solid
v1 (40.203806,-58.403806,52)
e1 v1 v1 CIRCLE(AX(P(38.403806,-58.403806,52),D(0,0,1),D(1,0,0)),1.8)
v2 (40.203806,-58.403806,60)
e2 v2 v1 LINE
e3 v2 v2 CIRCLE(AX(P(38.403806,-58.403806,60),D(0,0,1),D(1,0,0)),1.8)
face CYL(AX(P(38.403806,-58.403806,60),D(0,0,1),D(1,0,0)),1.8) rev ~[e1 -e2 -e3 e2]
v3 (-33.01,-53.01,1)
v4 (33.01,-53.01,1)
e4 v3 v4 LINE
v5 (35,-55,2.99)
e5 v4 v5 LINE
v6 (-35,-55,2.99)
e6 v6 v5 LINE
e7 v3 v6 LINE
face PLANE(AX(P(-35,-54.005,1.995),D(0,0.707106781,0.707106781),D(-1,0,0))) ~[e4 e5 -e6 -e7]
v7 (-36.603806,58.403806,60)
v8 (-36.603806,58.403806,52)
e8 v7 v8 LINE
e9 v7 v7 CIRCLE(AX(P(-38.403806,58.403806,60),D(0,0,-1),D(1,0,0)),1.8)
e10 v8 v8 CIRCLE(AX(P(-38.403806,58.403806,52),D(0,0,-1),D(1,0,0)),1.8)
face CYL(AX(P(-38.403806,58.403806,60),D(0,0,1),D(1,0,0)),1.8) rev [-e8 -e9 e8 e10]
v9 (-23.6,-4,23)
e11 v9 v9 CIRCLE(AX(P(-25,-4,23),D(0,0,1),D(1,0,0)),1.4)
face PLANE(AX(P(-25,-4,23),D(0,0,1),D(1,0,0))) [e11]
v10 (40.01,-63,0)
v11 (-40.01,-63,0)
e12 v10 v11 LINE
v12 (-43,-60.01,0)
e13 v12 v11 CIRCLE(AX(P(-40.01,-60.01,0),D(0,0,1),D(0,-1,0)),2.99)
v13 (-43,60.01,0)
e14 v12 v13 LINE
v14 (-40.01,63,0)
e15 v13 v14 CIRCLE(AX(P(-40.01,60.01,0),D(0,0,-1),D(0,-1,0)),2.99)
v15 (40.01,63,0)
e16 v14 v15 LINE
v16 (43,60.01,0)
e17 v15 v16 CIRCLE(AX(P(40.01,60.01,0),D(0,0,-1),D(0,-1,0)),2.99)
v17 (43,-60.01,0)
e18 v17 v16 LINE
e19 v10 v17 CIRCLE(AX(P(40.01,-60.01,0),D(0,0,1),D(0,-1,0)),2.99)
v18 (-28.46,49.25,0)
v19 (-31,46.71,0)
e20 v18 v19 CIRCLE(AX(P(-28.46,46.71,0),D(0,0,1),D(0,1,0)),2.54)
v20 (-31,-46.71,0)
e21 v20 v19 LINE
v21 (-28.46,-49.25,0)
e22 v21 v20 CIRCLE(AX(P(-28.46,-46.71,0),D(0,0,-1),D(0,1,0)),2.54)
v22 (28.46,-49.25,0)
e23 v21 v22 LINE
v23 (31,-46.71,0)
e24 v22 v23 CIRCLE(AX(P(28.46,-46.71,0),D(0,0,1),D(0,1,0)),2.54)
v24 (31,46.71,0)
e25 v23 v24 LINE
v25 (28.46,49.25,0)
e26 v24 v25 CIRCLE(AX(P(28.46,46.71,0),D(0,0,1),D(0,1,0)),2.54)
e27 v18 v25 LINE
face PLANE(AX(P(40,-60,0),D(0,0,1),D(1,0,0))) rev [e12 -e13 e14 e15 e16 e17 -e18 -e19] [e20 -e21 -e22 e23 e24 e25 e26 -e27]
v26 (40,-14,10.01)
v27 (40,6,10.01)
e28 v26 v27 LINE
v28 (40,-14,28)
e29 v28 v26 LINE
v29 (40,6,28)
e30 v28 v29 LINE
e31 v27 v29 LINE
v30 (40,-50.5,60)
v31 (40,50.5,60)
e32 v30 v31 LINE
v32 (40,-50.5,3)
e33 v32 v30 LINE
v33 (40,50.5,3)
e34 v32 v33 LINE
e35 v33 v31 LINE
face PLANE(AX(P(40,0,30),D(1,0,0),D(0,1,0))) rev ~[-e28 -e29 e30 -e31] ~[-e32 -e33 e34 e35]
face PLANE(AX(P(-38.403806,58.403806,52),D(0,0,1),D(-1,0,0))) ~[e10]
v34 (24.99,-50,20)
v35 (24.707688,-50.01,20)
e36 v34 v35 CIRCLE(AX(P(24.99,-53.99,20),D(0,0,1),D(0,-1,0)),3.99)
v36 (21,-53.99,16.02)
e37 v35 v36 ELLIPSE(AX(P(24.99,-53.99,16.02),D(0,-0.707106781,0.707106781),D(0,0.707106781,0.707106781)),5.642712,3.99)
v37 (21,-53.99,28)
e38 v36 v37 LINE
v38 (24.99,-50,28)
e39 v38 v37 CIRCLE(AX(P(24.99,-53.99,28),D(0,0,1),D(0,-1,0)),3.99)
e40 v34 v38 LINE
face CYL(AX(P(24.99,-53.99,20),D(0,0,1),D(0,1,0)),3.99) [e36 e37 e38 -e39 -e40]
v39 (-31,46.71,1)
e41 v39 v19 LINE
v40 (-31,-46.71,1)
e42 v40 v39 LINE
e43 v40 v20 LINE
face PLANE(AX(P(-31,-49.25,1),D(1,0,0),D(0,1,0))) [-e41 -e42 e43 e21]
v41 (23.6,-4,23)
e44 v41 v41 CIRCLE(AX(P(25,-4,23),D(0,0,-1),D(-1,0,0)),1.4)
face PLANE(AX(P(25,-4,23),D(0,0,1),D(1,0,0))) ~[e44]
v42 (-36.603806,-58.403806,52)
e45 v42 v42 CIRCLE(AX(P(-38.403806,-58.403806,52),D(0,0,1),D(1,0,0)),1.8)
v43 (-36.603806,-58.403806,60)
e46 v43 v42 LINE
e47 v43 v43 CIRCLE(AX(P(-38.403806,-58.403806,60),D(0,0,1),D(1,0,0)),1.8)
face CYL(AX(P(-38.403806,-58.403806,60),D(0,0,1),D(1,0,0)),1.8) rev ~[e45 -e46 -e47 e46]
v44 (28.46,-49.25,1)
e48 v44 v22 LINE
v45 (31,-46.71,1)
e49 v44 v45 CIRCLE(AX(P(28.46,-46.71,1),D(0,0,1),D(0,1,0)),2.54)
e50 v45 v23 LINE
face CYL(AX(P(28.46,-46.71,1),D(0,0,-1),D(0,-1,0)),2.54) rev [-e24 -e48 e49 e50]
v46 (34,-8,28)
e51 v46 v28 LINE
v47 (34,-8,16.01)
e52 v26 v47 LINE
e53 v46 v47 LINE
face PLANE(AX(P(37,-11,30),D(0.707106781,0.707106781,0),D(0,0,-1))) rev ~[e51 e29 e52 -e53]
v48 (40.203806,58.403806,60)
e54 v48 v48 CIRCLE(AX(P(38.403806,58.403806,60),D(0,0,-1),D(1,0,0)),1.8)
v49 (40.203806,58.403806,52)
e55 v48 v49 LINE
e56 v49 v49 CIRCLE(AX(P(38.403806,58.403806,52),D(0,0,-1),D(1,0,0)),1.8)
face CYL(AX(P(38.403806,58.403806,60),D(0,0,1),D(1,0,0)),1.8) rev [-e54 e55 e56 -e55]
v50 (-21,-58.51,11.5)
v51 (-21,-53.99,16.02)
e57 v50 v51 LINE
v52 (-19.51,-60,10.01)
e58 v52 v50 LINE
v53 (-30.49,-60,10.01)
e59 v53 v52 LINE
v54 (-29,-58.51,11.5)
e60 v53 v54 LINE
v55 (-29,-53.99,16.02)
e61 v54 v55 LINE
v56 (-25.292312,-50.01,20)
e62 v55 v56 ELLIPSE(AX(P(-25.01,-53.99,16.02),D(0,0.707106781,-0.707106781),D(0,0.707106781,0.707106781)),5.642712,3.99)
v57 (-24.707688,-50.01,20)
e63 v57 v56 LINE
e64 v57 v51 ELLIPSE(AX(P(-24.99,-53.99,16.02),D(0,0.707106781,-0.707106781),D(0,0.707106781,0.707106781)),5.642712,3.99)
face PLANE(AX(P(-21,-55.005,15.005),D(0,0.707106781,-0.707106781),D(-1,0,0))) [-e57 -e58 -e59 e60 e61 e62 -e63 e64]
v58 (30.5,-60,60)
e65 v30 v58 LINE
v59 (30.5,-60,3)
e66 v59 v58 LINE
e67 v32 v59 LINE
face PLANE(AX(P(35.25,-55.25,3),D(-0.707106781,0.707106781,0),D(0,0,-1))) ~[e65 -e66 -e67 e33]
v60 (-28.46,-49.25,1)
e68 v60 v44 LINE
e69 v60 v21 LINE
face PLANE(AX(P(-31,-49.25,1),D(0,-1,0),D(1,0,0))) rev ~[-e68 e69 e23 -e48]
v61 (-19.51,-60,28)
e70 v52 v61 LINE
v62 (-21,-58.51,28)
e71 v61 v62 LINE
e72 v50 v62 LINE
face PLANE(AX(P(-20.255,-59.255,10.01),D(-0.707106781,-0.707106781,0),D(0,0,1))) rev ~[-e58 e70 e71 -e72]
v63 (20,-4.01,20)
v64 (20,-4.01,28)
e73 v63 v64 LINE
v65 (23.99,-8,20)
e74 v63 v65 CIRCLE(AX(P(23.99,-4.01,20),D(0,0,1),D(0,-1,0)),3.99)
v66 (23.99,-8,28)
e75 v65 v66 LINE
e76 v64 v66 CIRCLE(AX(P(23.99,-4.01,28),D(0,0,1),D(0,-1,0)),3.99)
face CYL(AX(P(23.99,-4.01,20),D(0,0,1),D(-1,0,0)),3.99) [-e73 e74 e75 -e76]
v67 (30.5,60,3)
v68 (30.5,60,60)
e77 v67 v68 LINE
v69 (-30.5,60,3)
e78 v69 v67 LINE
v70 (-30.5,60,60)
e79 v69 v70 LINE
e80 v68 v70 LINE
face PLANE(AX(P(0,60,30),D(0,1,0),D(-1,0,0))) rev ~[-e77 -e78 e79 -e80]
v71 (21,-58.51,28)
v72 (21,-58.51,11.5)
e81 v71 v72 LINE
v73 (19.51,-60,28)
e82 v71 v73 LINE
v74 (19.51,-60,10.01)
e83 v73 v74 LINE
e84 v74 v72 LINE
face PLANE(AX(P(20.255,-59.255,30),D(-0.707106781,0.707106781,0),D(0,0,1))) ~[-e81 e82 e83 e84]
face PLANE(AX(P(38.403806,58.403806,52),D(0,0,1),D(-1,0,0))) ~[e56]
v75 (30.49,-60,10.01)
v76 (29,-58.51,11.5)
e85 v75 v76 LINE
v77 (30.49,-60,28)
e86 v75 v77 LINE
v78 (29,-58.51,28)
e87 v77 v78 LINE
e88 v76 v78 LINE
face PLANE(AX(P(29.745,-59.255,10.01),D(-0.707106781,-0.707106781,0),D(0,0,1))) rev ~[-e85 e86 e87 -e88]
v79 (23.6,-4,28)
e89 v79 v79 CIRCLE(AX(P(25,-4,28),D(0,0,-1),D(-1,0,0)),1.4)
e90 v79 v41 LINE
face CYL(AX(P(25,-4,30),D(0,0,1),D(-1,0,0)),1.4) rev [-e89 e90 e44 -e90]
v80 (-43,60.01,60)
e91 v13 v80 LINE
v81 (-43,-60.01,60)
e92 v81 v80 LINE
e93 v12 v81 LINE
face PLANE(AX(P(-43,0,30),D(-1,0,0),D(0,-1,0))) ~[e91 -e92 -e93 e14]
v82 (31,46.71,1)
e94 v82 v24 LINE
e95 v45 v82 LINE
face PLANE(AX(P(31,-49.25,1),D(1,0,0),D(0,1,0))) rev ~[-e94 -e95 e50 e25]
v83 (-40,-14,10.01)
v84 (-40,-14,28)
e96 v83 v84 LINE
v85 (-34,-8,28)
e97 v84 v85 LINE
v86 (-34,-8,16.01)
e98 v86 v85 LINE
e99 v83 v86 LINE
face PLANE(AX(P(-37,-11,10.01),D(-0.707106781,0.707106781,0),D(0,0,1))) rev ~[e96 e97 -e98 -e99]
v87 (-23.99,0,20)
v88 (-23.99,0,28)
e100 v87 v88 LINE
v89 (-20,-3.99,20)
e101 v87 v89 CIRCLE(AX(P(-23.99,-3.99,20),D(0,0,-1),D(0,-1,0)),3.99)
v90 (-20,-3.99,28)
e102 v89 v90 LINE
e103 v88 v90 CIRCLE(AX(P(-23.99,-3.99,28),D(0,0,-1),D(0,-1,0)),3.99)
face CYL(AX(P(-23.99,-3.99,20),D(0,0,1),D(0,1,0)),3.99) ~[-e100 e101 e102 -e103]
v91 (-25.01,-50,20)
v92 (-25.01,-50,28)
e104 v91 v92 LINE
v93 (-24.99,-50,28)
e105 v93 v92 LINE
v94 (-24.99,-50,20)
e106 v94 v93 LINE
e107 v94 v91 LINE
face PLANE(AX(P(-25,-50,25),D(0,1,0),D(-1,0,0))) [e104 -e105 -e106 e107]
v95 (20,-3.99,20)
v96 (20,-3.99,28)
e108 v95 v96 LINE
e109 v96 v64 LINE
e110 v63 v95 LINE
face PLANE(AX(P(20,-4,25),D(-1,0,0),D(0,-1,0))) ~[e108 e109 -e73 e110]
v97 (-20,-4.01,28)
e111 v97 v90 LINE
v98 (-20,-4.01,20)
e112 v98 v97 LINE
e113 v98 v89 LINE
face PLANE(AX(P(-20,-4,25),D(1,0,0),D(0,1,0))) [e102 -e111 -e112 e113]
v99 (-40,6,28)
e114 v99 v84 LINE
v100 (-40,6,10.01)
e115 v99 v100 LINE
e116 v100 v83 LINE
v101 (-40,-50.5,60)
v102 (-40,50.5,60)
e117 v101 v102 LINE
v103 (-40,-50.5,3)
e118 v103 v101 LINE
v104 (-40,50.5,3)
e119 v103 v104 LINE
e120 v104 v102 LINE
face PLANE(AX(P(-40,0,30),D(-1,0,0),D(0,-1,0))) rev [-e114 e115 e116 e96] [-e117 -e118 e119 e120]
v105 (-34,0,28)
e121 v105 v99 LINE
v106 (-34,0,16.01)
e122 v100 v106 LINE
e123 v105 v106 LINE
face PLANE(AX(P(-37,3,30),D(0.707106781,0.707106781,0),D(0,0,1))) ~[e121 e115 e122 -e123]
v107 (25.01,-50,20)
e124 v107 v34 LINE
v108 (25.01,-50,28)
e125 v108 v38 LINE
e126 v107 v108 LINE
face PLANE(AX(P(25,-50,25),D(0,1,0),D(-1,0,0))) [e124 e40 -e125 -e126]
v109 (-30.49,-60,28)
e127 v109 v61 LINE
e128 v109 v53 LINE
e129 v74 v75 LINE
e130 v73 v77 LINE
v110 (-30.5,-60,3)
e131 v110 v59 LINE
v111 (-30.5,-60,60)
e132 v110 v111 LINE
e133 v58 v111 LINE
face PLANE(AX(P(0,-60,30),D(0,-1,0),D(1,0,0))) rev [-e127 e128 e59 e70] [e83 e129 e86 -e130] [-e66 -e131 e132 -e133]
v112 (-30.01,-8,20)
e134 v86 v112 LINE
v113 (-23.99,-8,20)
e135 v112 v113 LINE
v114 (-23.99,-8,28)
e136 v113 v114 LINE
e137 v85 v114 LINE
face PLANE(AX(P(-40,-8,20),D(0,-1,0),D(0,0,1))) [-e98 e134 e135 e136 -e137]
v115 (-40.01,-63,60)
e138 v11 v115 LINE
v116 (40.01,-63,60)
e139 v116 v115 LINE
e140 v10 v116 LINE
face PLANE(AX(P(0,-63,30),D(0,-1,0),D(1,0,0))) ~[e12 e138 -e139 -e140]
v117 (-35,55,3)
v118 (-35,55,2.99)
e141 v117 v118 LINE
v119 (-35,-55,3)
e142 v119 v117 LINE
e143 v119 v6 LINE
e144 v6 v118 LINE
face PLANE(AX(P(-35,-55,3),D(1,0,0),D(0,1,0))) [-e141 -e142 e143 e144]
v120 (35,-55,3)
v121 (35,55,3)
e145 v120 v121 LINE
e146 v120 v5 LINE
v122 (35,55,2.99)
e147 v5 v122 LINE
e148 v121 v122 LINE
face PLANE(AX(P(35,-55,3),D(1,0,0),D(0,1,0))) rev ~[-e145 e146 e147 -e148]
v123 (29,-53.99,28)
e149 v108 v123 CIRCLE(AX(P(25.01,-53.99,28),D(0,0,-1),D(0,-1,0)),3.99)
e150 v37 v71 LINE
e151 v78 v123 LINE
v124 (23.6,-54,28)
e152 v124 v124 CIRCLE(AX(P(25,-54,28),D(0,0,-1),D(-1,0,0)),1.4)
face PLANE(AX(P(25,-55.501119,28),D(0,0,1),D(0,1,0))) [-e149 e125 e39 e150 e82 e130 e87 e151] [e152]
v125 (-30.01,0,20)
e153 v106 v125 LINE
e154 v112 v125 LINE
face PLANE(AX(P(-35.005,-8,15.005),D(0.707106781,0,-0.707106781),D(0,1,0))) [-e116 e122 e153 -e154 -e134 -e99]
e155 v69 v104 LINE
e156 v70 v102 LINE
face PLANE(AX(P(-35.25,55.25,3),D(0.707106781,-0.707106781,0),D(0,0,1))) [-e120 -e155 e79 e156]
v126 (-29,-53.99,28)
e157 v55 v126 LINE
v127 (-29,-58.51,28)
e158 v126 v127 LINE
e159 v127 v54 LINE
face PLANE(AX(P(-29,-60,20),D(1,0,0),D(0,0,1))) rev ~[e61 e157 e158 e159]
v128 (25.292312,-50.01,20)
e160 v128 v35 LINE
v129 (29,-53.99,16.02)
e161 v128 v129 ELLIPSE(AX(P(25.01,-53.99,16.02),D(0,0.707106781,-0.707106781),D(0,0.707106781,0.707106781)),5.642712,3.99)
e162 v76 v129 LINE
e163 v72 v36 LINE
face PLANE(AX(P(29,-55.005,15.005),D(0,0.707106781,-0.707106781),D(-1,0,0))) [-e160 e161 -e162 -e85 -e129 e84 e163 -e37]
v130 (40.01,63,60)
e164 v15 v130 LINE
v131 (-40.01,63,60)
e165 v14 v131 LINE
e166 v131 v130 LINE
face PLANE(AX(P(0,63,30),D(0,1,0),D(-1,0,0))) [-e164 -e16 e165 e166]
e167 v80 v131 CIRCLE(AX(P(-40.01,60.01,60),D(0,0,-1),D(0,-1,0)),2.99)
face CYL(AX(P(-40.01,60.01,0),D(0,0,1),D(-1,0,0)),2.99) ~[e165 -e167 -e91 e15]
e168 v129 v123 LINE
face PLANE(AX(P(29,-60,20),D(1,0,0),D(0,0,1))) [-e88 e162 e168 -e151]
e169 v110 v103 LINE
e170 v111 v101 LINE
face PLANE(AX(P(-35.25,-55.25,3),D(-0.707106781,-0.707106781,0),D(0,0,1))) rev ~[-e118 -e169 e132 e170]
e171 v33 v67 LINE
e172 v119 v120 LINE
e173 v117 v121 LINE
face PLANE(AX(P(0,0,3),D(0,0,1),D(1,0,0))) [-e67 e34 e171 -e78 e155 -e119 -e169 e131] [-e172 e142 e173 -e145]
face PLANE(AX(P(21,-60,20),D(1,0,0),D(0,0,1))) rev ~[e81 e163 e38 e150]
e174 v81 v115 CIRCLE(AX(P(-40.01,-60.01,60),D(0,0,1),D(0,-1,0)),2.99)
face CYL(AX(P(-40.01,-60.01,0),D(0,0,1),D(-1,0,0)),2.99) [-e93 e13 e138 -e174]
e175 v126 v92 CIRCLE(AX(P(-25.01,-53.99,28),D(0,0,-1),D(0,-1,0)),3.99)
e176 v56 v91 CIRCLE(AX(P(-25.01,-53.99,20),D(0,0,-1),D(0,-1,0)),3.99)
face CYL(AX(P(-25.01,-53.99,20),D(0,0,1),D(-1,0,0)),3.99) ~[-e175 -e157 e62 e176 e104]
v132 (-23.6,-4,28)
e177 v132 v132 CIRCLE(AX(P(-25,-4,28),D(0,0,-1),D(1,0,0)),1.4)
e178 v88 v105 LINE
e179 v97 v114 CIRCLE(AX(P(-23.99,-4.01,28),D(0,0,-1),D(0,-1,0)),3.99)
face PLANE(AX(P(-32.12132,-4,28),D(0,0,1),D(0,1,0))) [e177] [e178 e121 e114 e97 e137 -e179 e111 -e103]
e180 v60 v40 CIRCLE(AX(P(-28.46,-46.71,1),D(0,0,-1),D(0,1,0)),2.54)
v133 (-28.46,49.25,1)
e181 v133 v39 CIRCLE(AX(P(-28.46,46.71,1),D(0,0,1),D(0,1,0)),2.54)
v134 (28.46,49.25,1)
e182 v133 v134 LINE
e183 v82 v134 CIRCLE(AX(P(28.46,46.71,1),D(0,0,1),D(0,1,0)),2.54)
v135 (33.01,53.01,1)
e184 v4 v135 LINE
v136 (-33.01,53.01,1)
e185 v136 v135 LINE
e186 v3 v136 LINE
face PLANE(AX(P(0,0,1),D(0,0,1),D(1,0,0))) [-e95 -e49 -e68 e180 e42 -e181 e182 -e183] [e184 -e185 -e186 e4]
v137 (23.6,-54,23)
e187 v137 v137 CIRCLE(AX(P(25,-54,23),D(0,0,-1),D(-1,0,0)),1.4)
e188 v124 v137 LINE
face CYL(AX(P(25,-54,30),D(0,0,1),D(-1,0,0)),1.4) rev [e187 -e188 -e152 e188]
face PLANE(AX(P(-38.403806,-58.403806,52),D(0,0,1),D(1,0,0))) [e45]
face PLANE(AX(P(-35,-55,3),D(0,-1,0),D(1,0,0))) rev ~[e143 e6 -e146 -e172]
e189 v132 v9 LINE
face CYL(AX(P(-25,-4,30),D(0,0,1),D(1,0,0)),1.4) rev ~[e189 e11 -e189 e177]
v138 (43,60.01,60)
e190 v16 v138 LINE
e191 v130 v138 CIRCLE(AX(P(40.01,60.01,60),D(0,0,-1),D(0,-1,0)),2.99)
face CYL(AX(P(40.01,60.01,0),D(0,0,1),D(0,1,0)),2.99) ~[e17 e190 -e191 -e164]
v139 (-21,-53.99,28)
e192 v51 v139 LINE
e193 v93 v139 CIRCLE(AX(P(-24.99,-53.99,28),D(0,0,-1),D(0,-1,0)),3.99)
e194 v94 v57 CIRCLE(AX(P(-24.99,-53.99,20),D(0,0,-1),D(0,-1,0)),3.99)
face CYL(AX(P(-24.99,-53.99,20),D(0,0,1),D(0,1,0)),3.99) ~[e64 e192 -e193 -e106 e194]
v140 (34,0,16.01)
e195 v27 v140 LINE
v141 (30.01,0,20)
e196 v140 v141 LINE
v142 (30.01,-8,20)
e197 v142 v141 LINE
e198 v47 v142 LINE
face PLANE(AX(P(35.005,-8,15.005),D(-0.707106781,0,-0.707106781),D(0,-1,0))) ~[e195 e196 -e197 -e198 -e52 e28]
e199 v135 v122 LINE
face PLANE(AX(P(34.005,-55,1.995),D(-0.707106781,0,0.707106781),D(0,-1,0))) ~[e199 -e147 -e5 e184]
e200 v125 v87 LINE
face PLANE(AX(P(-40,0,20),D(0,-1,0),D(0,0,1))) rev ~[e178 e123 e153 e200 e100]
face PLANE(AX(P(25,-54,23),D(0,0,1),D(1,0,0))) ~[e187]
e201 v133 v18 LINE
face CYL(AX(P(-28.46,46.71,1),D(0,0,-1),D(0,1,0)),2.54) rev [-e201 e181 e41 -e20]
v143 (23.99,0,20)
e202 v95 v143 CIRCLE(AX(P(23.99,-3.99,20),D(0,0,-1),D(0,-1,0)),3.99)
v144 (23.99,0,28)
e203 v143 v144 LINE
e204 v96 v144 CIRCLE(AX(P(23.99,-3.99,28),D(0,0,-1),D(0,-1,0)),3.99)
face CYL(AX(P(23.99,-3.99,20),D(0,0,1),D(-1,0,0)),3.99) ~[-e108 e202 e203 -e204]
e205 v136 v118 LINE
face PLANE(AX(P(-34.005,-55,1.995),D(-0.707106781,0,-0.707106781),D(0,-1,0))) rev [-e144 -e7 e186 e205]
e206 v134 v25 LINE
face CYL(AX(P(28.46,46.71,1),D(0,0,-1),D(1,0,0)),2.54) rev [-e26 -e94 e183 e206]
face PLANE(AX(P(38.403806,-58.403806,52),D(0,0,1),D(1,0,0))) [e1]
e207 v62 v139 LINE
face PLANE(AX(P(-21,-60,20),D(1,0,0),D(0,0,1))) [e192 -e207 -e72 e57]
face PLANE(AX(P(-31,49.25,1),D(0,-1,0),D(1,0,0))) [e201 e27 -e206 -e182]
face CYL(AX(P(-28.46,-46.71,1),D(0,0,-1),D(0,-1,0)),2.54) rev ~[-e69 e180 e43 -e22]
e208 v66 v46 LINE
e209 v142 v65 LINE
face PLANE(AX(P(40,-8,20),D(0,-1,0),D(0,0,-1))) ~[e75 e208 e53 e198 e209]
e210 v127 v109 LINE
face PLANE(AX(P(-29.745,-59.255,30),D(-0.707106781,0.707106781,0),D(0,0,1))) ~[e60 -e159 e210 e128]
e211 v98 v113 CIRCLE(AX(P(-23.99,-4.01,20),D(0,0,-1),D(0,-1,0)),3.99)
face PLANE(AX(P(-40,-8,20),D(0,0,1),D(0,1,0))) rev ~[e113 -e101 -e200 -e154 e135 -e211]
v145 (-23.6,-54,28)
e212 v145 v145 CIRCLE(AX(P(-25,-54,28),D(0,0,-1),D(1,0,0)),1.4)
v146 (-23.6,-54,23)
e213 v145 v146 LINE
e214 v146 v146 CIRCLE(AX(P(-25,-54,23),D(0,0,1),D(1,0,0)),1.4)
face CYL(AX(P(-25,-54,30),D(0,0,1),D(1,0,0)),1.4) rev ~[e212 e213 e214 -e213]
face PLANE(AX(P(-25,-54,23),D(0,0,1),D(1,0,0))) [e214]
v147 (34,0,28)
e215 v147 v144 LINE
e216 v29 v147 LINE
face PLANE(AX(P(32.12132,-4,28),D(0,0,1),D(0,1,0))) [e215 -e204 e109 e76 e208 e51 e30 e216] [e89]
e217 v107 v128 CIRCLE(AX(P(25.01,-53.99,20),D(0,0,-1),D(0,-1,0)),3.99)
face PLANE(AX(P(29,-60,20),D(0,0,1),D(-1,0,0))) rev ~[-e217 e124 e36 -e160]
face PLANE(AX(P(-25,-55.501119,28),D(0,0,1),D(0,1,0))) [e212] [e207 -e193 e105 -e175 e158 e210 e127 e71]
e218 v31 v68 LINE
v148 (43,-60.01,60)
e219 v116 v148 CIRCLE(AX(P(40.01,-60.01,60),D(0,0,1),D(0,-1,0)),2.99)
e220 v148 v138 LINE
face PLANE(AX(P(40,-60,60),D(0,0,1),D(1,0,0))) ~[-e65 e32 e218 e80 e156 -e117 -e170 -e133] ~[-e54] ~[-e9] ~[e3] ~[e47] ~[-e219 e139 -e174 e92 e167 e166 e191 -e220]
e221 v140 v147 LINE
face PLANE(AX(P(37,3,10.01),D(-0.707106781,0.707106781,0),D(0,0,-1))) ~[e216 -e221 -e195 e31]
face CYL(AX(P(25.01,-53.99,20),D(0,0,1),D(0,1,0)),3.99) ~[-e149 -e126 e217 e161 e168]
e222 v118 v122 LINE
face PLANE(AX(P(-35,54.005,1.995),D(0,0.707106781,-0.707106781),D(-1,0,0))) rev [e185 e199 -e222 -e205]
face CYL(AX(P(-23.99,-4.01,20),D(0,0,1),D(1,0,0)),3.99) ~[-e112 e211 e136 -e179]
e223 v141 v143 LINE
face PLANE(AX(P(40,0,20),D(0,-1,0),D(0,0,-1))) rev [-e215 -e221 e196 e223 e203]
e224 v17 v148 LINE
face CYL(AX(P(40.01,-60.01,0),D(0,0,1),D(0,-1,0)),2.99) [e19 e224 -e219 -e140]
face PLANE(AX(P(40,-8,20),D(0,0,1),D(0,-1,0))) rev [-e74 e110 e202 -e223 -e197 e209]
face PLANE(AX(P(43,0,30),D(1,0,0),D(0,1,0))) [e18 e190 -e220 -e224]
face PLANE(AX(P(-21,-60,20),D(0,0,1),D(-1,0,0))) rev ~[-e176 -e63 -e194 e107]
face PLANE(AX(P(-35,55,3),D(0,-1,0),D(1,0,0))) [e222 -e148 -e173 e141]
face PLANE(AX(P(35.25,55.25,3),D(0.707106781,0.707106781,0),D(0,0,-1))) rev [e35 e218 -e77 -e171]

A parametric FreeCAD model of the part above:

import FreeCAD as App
import Part
import Sketcher

V = App.Vector


def edges_at(feature, points):
    """Names of the edges that pass closest to the given points."""
    edges = feature.Shape.Edges
    near = lambda p: min(range(len(edges)), key=lambda i: edges[i].distToShape(Part.Vertex(*p))[0])
    return sorted({f"Edge{near(p) + 1}" for p in points})


def add_polygon(sketch, points):
    """Adds a closed chain of lines whose ends are joined by coincident constraints."""
    first, n = sketch.GeometryCount, len(points)
    for a, b in zip(points, points[1:] + points[:1]):
        sketch.addGeometry(Part.LineSegment(App.Vector(*a, 0), App.Vector(*b, 0)), False)
    for i in range(n):
        sketch.addConstraint(Sketcher.Constraint("Coincident", first + i, 2, first + (i + 1) % n, 1))

doc = App.newDocument("Part")
params = doc.addObject("Spreadsheet::Sheet", "Params")
for row, (alias, value) in enumerate([
    ("sketch1_width", "80 mm"),
    ("sketch1_height", "120 mm"),
    ("pad1_length", "3 mm"),
    ("sketch2_width", "70 mm"),
    ("sketch2_height", "110 mm"),
    ("pocket1_length", "2 mm"),
    ("sketch3_width", "62 mm"),
    ("sketch3_height", "98.5 mm"),
    ("pocket2_length", "5 mm"),
    ("fillet_radius", "2.54 mm"),
    ("chamfer_size", "1.99 mm"),
    ("sketch4_width", "126 mm"),
    ("sketch4_height", "60 mm"),
    ("pad2_length", "3 mm"),
    ("sketch5_width", "80 mm"),
    ("sketch5_height", "60 mm"),
    ("pad3_length", "3 mm"),
    ("chamfer2_size", "9.5 mm"),
    ("sketch6_diameter", "3.6 mm"),
    ("pocket3_length", "8 mm"),
    ("fillet2_radius", "2.99 mm"),
    ("sketch7_width", "8 mm"),
    ("sketch7_height", "10 mm"),
    ("pad4_length", "10 mm"),
    ("sketch8_width", "8 mm"),
    ("sketch8_height", "10 mm"),
    ("pad5_length", "20 mm"),
    ("sketch9_diameter", "2.8 mm"),
    ("pocket4_length", "7 mm"),
    ("sketch10_diameter", "2.8 mm"),
    ("pocket5_length", "7 mm"),
    ("chamfer3_size", "9.99 mm"),
    ("chamfer4_size", "9.99 mm"),
    ("chamfer5_size", "1.49 mm"),
    ("chamfer6_size", "6 mm"),
    ("sketch11_diameter", "2.8 mm"),
    ("sketch11_width", "14 mm"),
    ("sketch11_height", "20 mm"),
    ("sketch11_height2", "8 mm"),
    ("pocket6_length", "2 mm"),
    ("sketch12_diameter", "2.8 mm"),
    ("sketch12_width", "8 mm"),
    ("sketch12_width2", "10.98 mm"),
    ("pocket7_length", "2 mm"),
    ("sketch13_diameter", "2.8 mm"),
    ("sketch13_width", "14 mm"),
    ("sketch13_height", "8 mm"),
    ("sketch13_height2", "20 mm"),
    ("pocket8_length", "2 mm"),
    ("sketch14_diameter", "2.8 mm"),
    ("sketch14_width", "8 mm"),
    ("sketch14_width2", "10.98 mm"),
    ("pocket9_length", "2 mm"),
    ("fillet3_radius", "3.99 mm"),
], start=1):
    params.set(f"A{row}", alias)
    params.set(f"B{row}", "=" + value)
    params.setAlias(f"B{row}", alias)

body = doc.addObject("PartDesign::Body", "Body")

sketch1 = body.newObject("Sketcher::SketchObject", "Sketch")
sketch1.AttachmentSupport = (doc.getObject("XY_Plane"), [""])
sketch1.MapMode = "FlatFace"
add_polygon(sketch1, [(-40, 60), (-40, -60), (40, -60), (40, 60)])
sketch1.addConstraint(Sketcher.Constraint("Vertical", 0))
sketch1.addConstraint(Sketcher.Constraint("Horizontal", 1))
sketch1.addConstraint(Sketcher.Constraint("Vertical", 2))
sketch1.addConstraint(Sketcher.Constraint("Horizontal", 3))
sketch1.addConstraint(Sketcher.Constraint("Symmetric", 0, 2, 2, 2, -1, 1))
sketch1.addConstraint(Sketcher.Constraint("DistanceX", 1, 1, 1, 2, 80.0))
sketch1.addConstraint(Sketcher.Constraint("DistanceY", 0, 2, 0, 1, 120.0))
sketch1.setExpression("Constraints[9]", "Params.sketch1_width")
sketch1.setExpression("Constraints[10]", "Params.sketch1_height")
pad1 = body.newObject("PartDesign::Pad", "Pad")
pad1.Profile = sketch1
pad1.setExpression("Length", "Params.pad1_length")

sketch2 = body.newObject("Sketcher::SketchObject", "Sketch001")
sketch2.AttachmentSupport = (doc.getObject("XY_Plane"), [""])
sketch2.MapMode = "FlatFace"
sketch2.AttachmentOffset = App.Placement(V(0, 0, 3), App.Rotation())
add_polygon(sketch2, [(-35, 55), (-35, -55), (35, -55), (35, 55)])
sketch2.addConstraint(Sketcher.Constraint("Vertical", 0))
sketch2.addConstraint(Sketcher.Constraint("Horizontal", 1))
sketch2.addConstraint(Sketcher.Constraint("Vertical", 2))
sketch2.addConstraint(Sketcher.Constraint("Horizontal", 3))
sketch2.addConstraint(Sketcher.Constraint("Symmetric", 0, 2, 2, 2, -1, 1))
sketch2.addConstraint(Sketcher.Constraint("DistanceX", 1, 1, 1, 2, 70.0))
sketch2.addConstraint(Sketcher.Constraint("DistanceY", 0, 2, 0, 1, 110.0))
sketch2.setExpression("Constraints[9]", "Params.sketch2_width")
sketch2.setExpression("Constraints[10]", "Params.sketch2_height")
pocket1 = body.newObject("PartDesign::Pocket", "Pocket")
pocket1.Profile = sketch2
pocket1.setExpression("Length", "Params.pocket1_length")

sketch3 = body.newObject("Sketcher::SketchObject", "Sketch002")
sketch3.AttachmentSupport = (doc.getObject("XY_Plane"), [""])
sketch3.MapMode = "FlatFace"
sketch3.AttachmentOffset = App.Placement(V(0, 0, 1), App.Rotation())
add_polygon(sketch3, [(-31, 49), (-31, -49), (31, -49), (31, 49)])
sketch3.addConstraint(Sketcher.Constraint("Vertical", 0))
sketch3.addConstraint(Sketcher.Constraint("Horizontal", 1))
sketch3.addConstraint(Sketcher.Constraint("Vertical", 2))
sketch3.addConstraint(Sketcher.Constraint("Horizontal", 3))
sketch3.addConstraint(Sketcher.Constraint("Symmetric", 0, 2, 2, 2, -1, 1))
sketch3.addConstraint(Sketcher.Constraint("DistanceX", 1, 1, 1, 2, 62.0))
sketch3.addConstraint(Sketcher.Constraint("DistanceY", 0, 2, 0, 1, 98.5))
sketch3.setExpression("Constraints[9]", "Params.sketch3_width")
sketch3.setExpression("Constraints[10]", "Params.sketch3_height")
pocket2 = body.newObject("PartDesign::Pocket", "Pocket001")
pocket2.Profile = sketch3
pocket2.setExpression("Length", "Params.pocket2_length")
doc.recompute()

fillet = body.newObject("PartDesign::Fillet", "Fillet")
fillet.Base = (pocket2, edges_at(pocket2, [
    (-31, 49.25, 0.5),
    (31, 49.25, 0.5),
    (31, -49.25, 0.5),
    (-31, -49.25, 0.5),
]))
fillet.setExpression("Radius", "Params.fillet_radius")
doc.recompute()

chamfer = body.newObject("PartDesign::Chamfer", "Chamfer")
chamfer.Base = (fillet, edges_at(fillet, [
    (0, 55, 1),
    (35, 0, 1),
    (0, -55, 1),
    (-35, 0, 1),
]))
chamfer.setExpression("Size", "Params.chamfer_size")

sketch4 = body.newObject("Sketcher::SketchObject", "Sketch003")
sketch4.AttachmentSupport = (doc.getObject("YZ_Plane"), [""])
sketch4.MapMode = "FlatFace"
sketch4.AttachmentOffset = App.Placement(V(0, 0, 40), App.Rotation())
add_polygon(sketch4, [(-63, 60), (-63, 0), (63, 0), (63, 60)])
sketch4.addConstraint(Sketcher.Constraint("Vertical", 0))
sketch4.addConstraint(Sketcher.Constraint("Horizontal", 1))
sketch4.addConstraint(Sketcher.Constraint("Vertical", 2))
sketch4.addConstraint(Sketcher.Constraint("Horizontal", 3))
sketch4.addConstraint(Sketcher.Constraint("Symmetric", 0, 2, 1, 2, -1, 1))
sketch4.addConstraint(Sketcher.Constraint("DistanceX", 1, 1, 1, 2, 126.0))
sketch4.addConstraint(Sketcher.Constraint("DistanceY", 0, 2, 0, 1, 60.0))
sketch4.setExpression("Constraints[9]", "Params.sketch4_width")
sketch4.setExpression("Constraints[10]", "Params.sketch4_height")
pad2 = body.newObject("PartDesign::Pad", "Pad001")
pad2.Profile = sketch4
pad2.setExpression("Length", "Params.pad2_length")
doc.recompute()

mirrored = body.newObject("PartDesign::Mirrored", "Mirrored")
mirrored.Originals = [pad2]
mirrored.MirrorPlane = (doc.getObject("YZ_Plane"), [""])
body.Tip = mirrored

sketch5 = body.newObject("Sketcher::SketchObject", "Sketch004")
sketch5.AttachmentSupport = (doc.getObject("XZ_Plane"), [""])
sketch5.MapMode = "FlatFace"
sketch5.AttachmentOffset = App.Placement(V(0, 0, -60), App.Rotation())
add_polygon(sketch5, [(40, 60), (40, 0), (-40, 0), (-40, 60)])
sketch5.addConstraint(Sketcher.Constraint("Vertical", 0))
sketch5.addConstraint(Sketcher.Constraint("Horizontal", 1))
sketch5.addConstraint(Sketcher.Constraint("Vertical", 2))
sketch5.addConstraint(Sketcher.Constraint("Horizontal", 3))
sketch5.addConstraint(Sketcher.Constraint("Symmetric", 0, 2, 1, 2, -1, 1))
sketch5.addConstraint(Sketcher.Constraint("DistanceX", 1, 2, 1, 1, 80.0))
sketch5.addConstraint(Sketcher.Constraint("DistanceY", 0, 2, 0, 1, 60.0))
sketch5.setExpression("Constraints[9]", "Params.sketch5_width")
sketch5.setExpression("Constraints[10]", "Params.sketch5_height")
pad3 = body.newObject("PartDesign::Pad", "Pad002")
pad3.Profile = sketch5
pad3.setExpression("Length", "Params.pad3_length")
pad3.Reversed = True
doc.recompute()

mirrored2 = body.newObject("PartDesign::Mirrored", "Mirrored001")
mirrored2.Originals = [pad3]
mirrored2.MirrorPlane = (doc.getObject("XZ_Plane"), [""])
body.Tip = mirrored2
doc.recompute()

chamfer2 = body.newObject("PartDesign::Chamfer", "Chamfer001")
chamfer2.Base = (mirrored2, edges_at(mirrored2, [
    (-40, -60, 31.5),
    (-40, 60, 31.5),
    (40, 60, 31.5),
    (40, -60, 31.5),
]))
chamfer2.setExpression("Size", "Params.chamfer2_size")

sketch6 = body.newObject("Sketcher::SketchObject", "Sketch005")
sketch6.AttachmentSupport = (doc.getObject("XY_Plane"), [""])
sketch6.MapMode = "FlatFace"
sketch6.AttachmentOffset = App.Placement(V(0, 0, 60), App.Rotation())
sketch6.addGeometry(Part.Circle(V(-38.4, -58.4, 0), V(0, 0, 1), 1.8), False)
sketch6.addGeometry(Part.Circle(V(38.4, -58.4, 0), V(0, 0, 1), 1.8), False)
sketch6.addConstraint(Sketcher.Constraint("Equal", 0, 1))
sketch6.addConstraint(Sketcher.Constraint("Symmetric", 0, 3, 1, 3, -2))
sketch6.addConstraint(Sketcher.Constraint("Diameter", 0, 3.6))
sketch6.addConstraint(Sketcher.Constraint("DistanceX", 0, 3, -1, 1, 38.403806))
sketch6.addConstraint(Sketcher.Constraint("DistanceY", 0, 3, -1, 1, 58.403806))
sketch6.setExpression("Constraints[2]", "Params.sketch6_diameter")
pocket3 = body.newObject("PartDesign::Pocket", "Pocket002")
pocket3.Profile = sketch6
pocket3.setExpression("Length", "Params.pocket3_length")
doc.recompute()

mirrored3 = body.newObject("PartDesign::Mirrored", "Mirrored002")
mirrored3.Originals = [pocket3]
mirrored3.MirrorPlane = (doc.getObject("XZ_Plane"), [""])
body.Tip = mirrored3
doc.recompute()

fillet2 = body.newObject("PartDesign::Fillet", "Fillet001")
fillet2.Base = (mirrored3, edges_at(mirrored3, [
    (-43, 63, 30),
    (-43, -63, 30),
    (43, -63, 30),
    (43, 63, 30),
]))
fillet2.setExpression("Radius", "Params.fillet2_radius")

sketch7 = body.newObject("Sketcher::SketchObject", "Sketch006")
sketch7.AttachmentSupport = (doc.getObject("XZ_Plane"), [""])
sketch7.MapMode = "FlatFace"
sketch7.AttachmentOffset = App.Placement(V(0, 0, 60), App.Rotation())
add_polygon(sketch7, [(29, 30), (29, 20), (21, 20), (21, 30)])
add_polygon(sketch7, [(-21, 30), (-21, 20), (-29, 20), (-29, 30)])
sketch7.addConstraint(Sketcher.Constraint("Vertical", 0))
sketch7.addConstraint(Sketcher.Constraint("Horizontal", 1))
sketch7.addConstraint(Sketcher.Constraint("Vertical", 2))
sketch7.addConstraint(Sketcher.Constraint("Horizontal", 3))
sketch7.addConstraint(Sketcher.Constraint("Vertical", 4))
sketch7.addConstraint(Sketcher.Constraint("Horizontal", 5))
sketch7.addConstraint(Sketcher.Constraint("Vertical", 6))
sketch7.addConstraint(Sketcher.Constraint("Horizontal", 7))
sketch7.addConstraint(Sketcher.Constraint("Symmetric", 1, 2, 4, 2, -2))
sketch7.addConstraint(Sketcher.Constraint("Symmetric", 3, 2, 6, 2, -2))
sketch7.addConstraint(Sketcher.Constraint("DistanceX", 1, 2, 1, 1, 8.0))
sketch7.addConstraint(Sketcher.Constraint("DistanceY", 0, 2, 0, 1, 10.0))
sketch7.addConstraint(Sketcher.Constraint("DistanceX", -1, 1, 0, 2, 29.0))
sketch7.addConstraint(Sketcher.Constraint("DistanceY", -1, 1, 0, 2, 20.0))
sketch7.setExpression("Constraints[18]", "Params.sketch7_width")
sketch7.setExpression("Constraints[19]", "Params.sketch7_height")
pad4 = body.newObject("PartDesign::Pad", "Pad003")
pad4.Profile = sketch7
pad4.setExpression("Length", "Params.pad4_length")
pad4.Reversed = True

sketch8 = body.newObject("Sketcher::SketchObject", "Sketch007")
sketch8.AttachmentSupport = (doc.getObject("YZ_Plane"), [""])
sketch8.MapMode = "FlatFace"
sketch8.AttachmentOffset = App.Placement(V(0, 0, -40), App.Rotation())
add_polygon(sketch8, [(-8, 30), (-8, 20), (0, 20), (0, 30)])
sketch8.addConstraint(Sketcher.Constraint("Vertical", 0))
sketch8.addConstraint(Sketcher.Constraint("Horizontal", 1))
sketch8.addConstraint(Sketcher.Constraint("Vertical", 2))
sketch8.addConstraint(Sketcher.Constraint("Horizontal", 3))
sketch8.addConstraint(Sketcher.Constraint("PointOnObject", 1, 2, -2))
sketch8.addConstraint(Sketcher.Constraint("DistanceX", 1, 1, 1, 2, 8.0))
sketch8.addConstraint(Sketcher.Constraint("DistanceY", 0, 2, 0, 1, 10.0))
sketch8.addConstraint(Sketcher.Constraint("DistanceY", -1, 1, 0, 2, 20.0))
sketch8.setExpression("Constraints[9]", "Params.sketch8_width")
sketch8.setExpression("Constraints[10]", "Params.sketch8_height")
pad5 = body.newObject("PartDesign::Pad", "Pad004")
pad5.Profile = sketch8
pad5.setExpression("Length", "Params.pad5_length")

sketch9 = body.newObject("Sketcher::SketchObject", "Sketch008")
sketch9.AttachmentSupport = (doc.getObject("XY_Plane"), [""])
sketch9.MapMode = "FlatFace"
sketch9.AttachmentOffset = App.Placement(V(0, 0, 30), App.Rotation())
sketch9.addGeometry(Part.Circle(V(-25, -54, 0), V(0, 0, 1), 1.4), False)
sketch9.addConstraint(Sketcher.Constraint("Diameter", 0, 2.8))
sketch9.addConstraint(Sketcher.Constraint("DistanceX", 0, 3, -1, 1, 25.0))
sketch9.addConstraint(Sketcher.Constraint("DistanceY", 0, 3, -1, 1, 54.0))
sketch9.setExpression("Constraints[0]", "Params.sketch9_diameter")
pocket4 = body.newObject("PartDesign::Pocket", "Pocket003")
pocket4.Profile = sketch9
pocket4.setExpression("Length", "Params.pocket4_length")
doc.recompute()

mirrored4 = body.newObject("PartDesign::Mirrored", "Mirrored003")
mirrored4.Originals = [pocket4]
mirrored4.MirrorPlane = (doc.getObject("YZ_Plane"), [""])
body.Tip = mirrored4

sketch10 = body.newObject("Sketcher::SketchObject", "Sketch009")
sketch10.AttachmentSupport = (doc.getObject("XY_Plane"), [""])
sketch10.MapMode = "FlatFace"
sketch10.AttachmentOffset = App.Placement(V(0, 0, 30), App.Rotation())
sketch10.addGeometry(Part.Circle(V(-25, -4, 0), V(0, 0, 1), 1.4), False)
sketch10.addConstraint(Sketcher.Constraint("Diameter", 0, 2.8))
sketch10.addConstraint(Sketcher.Constraint("DistanceX", 0, 3, -1, 1, 25.0))
sketch10.addConstraint(Sketcher.Constraint("DistanceY", 0, 3, -1, 1, 4.0))
sketch10.setExpression("Constraints[0]", "Params.sketch10_diameter")
pocket5 = body.newObject("PartDesign::Pocket", "Pocket004")
pocket5.Profile = sketch10
pocket5.setExpression("Length", "Params.pocket5_length")
doc.recompute()

mirrored5 = body.newObject("PartDesign::Mirrored", "Mirrored004")
mirrored5.Originals = [pad5]
mirrored5.MirrorPlane = (doc.getObject("YZ_Plane"), [""])
body.Tip = mirrored5
doc.recompute()

mirrored6 = body.newObject("PartDesign::Mirrored", "Mirrored005")
mirrored6.Originals = [pocket5]
mirrored6.MirrorPlane = (doc.getObject("YZ_Plane"), [""])
body.Tip = mirrored6
doc.recompute()

chamfer3 = body.newObject("PartDesign::Chamfer", "Chamfer002")
chamfer3.Base = (mirrored6, edges_at(mirrored6, [(25, -60, 20), (-25, -60, 20)]))
chamfer3.setExpression("Size", "Params.chamfer3_size")
doc.recompute()

chamfer4 = body.newObject("PartDesign::Chamfer", "Chamfer003")
chamfer4.Base = (chamfer3, edges_at(chamfer3, [(40, -4, 20), (-40, -4, 20)]))
chamfer4.setExpression("Size", "Params.chamfer4_size")
doc.recompute()

chamfer5 = body.newObject("PartDesign::Chamfer", "Chamfer004")
chamfer5.Base = (chamfer4, edges_at(chamfer4, [
    (29, -60, 20.005),
    (29, -60, 20.005),
    (-29, -60, 20.005),
    (-21, -60, 20.005),
    (21, -60, 20.005),
]))
chamfer5.setExpression("Size", "Params.chamfer5_size")
doc.recompute()

chamfer6 = body.newObject("PartDesign::Chamfer", "Chamfer005")
chamfer6.Base = (chamfer5, edges_at(chamfer5, [
    (-40, 0, 20.005),
    (-40, -8, 20.005),
    (40, -8, 20.005),
    (40, 0, 20.005),
]))
chamfer6.setExpression("Size", "Params.chamfer6_size")

sketch11 = body.newObject("Sketcher::SketchObject", "Sketch010")
sketch11.AttachmentSupport = (doc.getObject("XY_Plane"), [""])
sketch11.MapMode = "FlatFace"
sketch11.AttachmentOffset = App.Placement(V(0, 0, 30), App.Rotation())
add_polygon(sketch11, [(20, -8), (34, -8), (40, -14), (40, 6), (34, 0), (20, 0)])
sketch11.addGeometry(Part.Circle(V(25, -4, 0), V(0, 0, 1), 1.4), False)
sketch11.addConstraint(Sketcher.Constraint("Horizontal", 0))
sketch11.addConstraint(Sketcher.Constraint("Vertical", 2))
sketch11.addConstraint(Sketcher.Constraint("Horizontal", 4))
sketch11.addConstraint(Sketcher.Constraint("Vertical", 5))
sketch11.addConstraint(Sketcher.Constraint("PointOnObject", 3, 2, -1))
sketch11.addConstraint(Sketcher.Constraint("Perpendicular", 1, 3))
sketch11.addConstraint(Sketcher.Constraint("Vertical", 0, 2, 3, 2))
sketch11.addConstraint(Sketcher.Constraint("Equal", 1, 3))
sketch11.addConstraint(Sketcher.Constraint("Diameter", 6, 2.8))
sketch11.addConstraint(Sketcher.Constraint("DistanceX", 0, 1, 0, 2, 14.0))
sketch11.addConstraint(Sketcher.Constraint("DistanceY", 2, 1, 2, 2, 20.0))
sketch11.addConstraint(Sketcher.Constraint("DistanceY", 5, 2, 5, 1, 8.0))
sketch11.addConstraint(Sketcher.Constraint("DistanceX", -1, 1, 6, 3, 25.0))
sketch11.addConstraint(Sketcher.Constraint("DistanceY", 6, 3, -1, 1, 4.0))
sketch11.addConstraint(Sketcher.Constraint("DistanceX", -1, 1, 0, 2, 34.0))
sketch11.setExpression("Constraints[14]", "Params.sketch11_diameter")
sketch11.setExpression("Constraints[15]", "Params.sketch11_width")
sketch11.setExpression("Constraints[16]", "Params.sketch11_height")
sketch11.setExpression("Constraints[17]", "Params.sketch11_height2")
pocket6 = body.newObject("PartDesign::Pocket", "Pocket005")
pocket6.Profile = sketch11
pocket6.setExpression("Length", "Params.pocket6_length")

sketch12 = body.newObject("Sketcher::SketchObject", "Sketch011")
sketch12.AttachmentSupport = (doc.getObject("XY_Plane"), [""])
sketch12.MapMode = "FlatFace"
sketch12.AttachmentOffset = App.Placement(V(0, 0, 30), App.Rotation())
add_polygon(sketch12, [(29, -58.5), (29, -50), (21, -50), (21, -58.5), (19.5, -60), (30.5, -60)])
sketch12.addGeometry(Part.Circle(V(25, -54, 0), V(0, 0, 1), 1.4), False)
sketch12.addConstraint(Sketcher.Constraint("Vertical", 0))
sketch12.addConstraint(Sketcher.Constraint("Horizontal", 1))
sketch12.addConstraint(Sketcher.Constraint("Vertical", 2))
sketch12.addConstraint(Sketcher.Constraint("Horizontal", 4))
sketch12.addConstraint(Sketcher.Constraint("Perpendicular", 3, 5))
sketch12.addConstraint(Sketcher.Constraint("Horizontal", 2, 2, 5, 2))
sketch12.addConstraint(Sketcher.Constraint("Equal", 3, 5))
sketch12.addConstraint(Sketcher.Constraint("Diameter", 6, 2.8))
sketch12.addConstraint(Sketcher.Constraint("DistanceX", 1, 2, 1, 1, 8.0))
sketch12.addConstraint(Sketcher.Constraint("DistanceX", -1, 1, 6, 3, 25.0))
sketch12.addConstraint(Sketcher.Constraint("DistanceY", 6, 3, -1, 1, 54.0))
sketch12.addConstraint(Sketcher.Constraint("DistanceX", -1, 1, 0, 2, 29.0))
sketch12.addConstraint(Sketcher.Constraint("DistanceY", 0, 2, -1, 1, 50.0))
sketch12.addConstraint(Sketcher.Constraint("DistanceY", 3, 2, -1, 1, 60.0))
sketch12.addConstraint(Sketcher.Constraint("DistanceX", 4, 1, 4, 2, 10.98))
sketch12.setExpression("Constraints[13]", "Params.sketch12_diameter")
sketch12.setExpression("Constraints[14]", "Params.sketch12_width")
sketch12.setExpression("Constraints[20]", "Params.sketch12_width2")
pocket7 = body.newObject("PartDesign::Pocket", "Pocket006")
pocket7.Profile = sketch12
pocket7.setExpression("Length", "Params.pocket7_length")

sketch13 = body.newObject("Sketcher::SketchObject", "Sketch012")
sketch13.AttachmentSupport = (doc.getObject("XY_Plane"), [""])
sketch13.MapMode = "FlatFace"
sketch13.AttachmentOffset = App.Placement(V(0, 0, 30), App.Rotation())
add_polygon(sketch13, [(-34, -8), (-20, -8), (-20, 0), (-34, 0), (-40, 6), (-40, -14)])
sketch13.addGeometry(Part.Circle(V(-25, -4, 0), V(0, 0, 1), 1.4), False)
sketch13.addConstraint(Sketcher.Constraint("Horizontal", 0))
sketch13.addConstraint(Sketcher.Constraint("Vertical", 1))
sketch13.addConstraint(Sketcher.Constraint("Horizontal", 2))
sketch13.addConstraint(Sketcher.Constraint("Vertical", 4))
sketch13.addConstraint(Sketcher.Constraint("PointOnObject", 1, 2, -1))
sketch13.addConstraint(Sketcher.Constraint("Perpendicular", 3, 5))
sketch13.addConstraint(Sketcher.Constraint("Vertical", 2, 2, 5, 2))
sketch13.addConstraint(Sketcher.Constraint("Equal", 3, 5))
sketch13.addConstraint(Sketcher.Constraint("Diameter", 6, 2.8))
sketch13.addConstraint(Sketcher.Constraint("DistanceX", 0, 1, 0, 2, 14.0))
sketch13.addConstraint(Sketcher.Constraint("DistanceY", 1, 1, 1, 2, 8.0))
sketch13.addConstraint(Sketcher.Constraint("DistanceY", 4, 2, 4, 1, 20.0))
sketch13.addConstraint(Sketcher.Constraint("DistanceX", 6, 3, -1, 1, 25.0))
sketch13.addConstraint(Sketcher.Constraint("DistanceY", 6, 3, -1, 1, 4.0))
sketch13.addConstraint(Sketcher.Constraint("DistanceX", 0, 2, -1, 1, 20.0))
sketch13.setExpression("Constraints[14]", "Params.sketch13_diameter")
sketch13.setExpression("Constraints[15]", "Params.sketch13_width")
sketch13.setExpression("Constraints[16]", "Params.sketch13_height")
sketch13.setExpression("Constraints[17]", "Params.sketch13_height2")
pocket8 = body.newObject("PartDesign::Pocket", "Pocket007")
pocket8.Profile = sketch13
pocket8.setExpression("Length", "Params.pocket8_length")

sketch14 = body.newObject("Sketcher::SketchObject", "Sketch013")
sketch14.AttachmentSupport = (doc.getObject("XY_Plane"), [""])
sketch14.MapMode = "FlatFace"
sketch14.AttachmentOffset = App.Placement(V(0, 0, 30), App.Rotation())
add_polygon(sketch14, [(-21, -58.5), (-21, -50), (-29, -50), (-29, -58.5), (-30.5, -60), (-19.5, -60)])
sketch14.addGeometry(Part.Circle(V(-25, -54, 0), V(0, 0, 1), 1.4), False)
sketch14.addConstraint(Sketcher.Constraint("Vertical", 0))
sketch14.addConstraint(Sketcher.Constraint("Horizontal", 1))
sketch14.addConstraint(Sketcher.Constraint("Vertical", 2))
sketch14.addConstraint(Sketcher.Constraint("Horizontal", 4))
sketch14.addConstraint(Sketcher.Constraint("Perpendicular", 3, 5))
sketch14.addConstraint(Sketcher.Constraint("Horizontal", 2, 2, 5, 2))
sketch14.addConstraint(Sketcher.Constraint("Equal", 3, 5))
sketch14.addConstraint(Sketcher.Constraint("Diameter", 6, 2.8))
sketch14.addConstraint(Sketcher.Constraint("DistanceX", 1, 2, 1, 1, 8.0))
sketch14.addConstraint(Sketcher.Constraint("DistanceX", 6, 3, -1, 1, 25.0))
sketch14.addConstraint(Sketcher.Constraint("DistanceY", 6, 3, -1, 1, 54.0))
sketch14.addConstraint(Sketcher.Constraint("DistanceX", 0, 2, -1, 1, 21.0))
sketch14.addConstraint(Sketcher.Constraint("DistanceY", 0, 2, -1, 1, 50.0))
sketch14.addConstraint(Sketcher.Constraint("DistanceY", 3, 2, -1, 1, 60.0))
sketch14.addConstraint(Sketcher.Constraint("DistanceX", 4, 1, 4, 2, 10.98))
sketch14.setExpression("Constraints[13]", "Params.sketch14_diameter")
sketch14.setExpression("Constraints[14]", "Params.sketch14_width")
sketch14.setExpression("Constraints[20]", "Params.sketch14_width2")
pocket9 = body.newObject("PartDesign::Pocket", "Pocket008")
pocket9.Profile = sketch14
pocket9.setExpression("Length", "Params.pocket9_length")
doc.recompute()

fillet3 = body.newObject("PartDesign::Fillet", "Fillet002")
fillet3.Base = (pocket9, edges_at(pocket9, [
    (20, 0, 24),
    (20, -8, 24),
    (-20, -8, 24),
    (-20, 0, 24),
    (-29, -50, 24),
    (-21, -50, 24),
    (21, -50, 24),
    (29, -50, 24),
]))
fillet3.setExpression("Radius", "Params.fillet3_radius")

doc.recompute()
